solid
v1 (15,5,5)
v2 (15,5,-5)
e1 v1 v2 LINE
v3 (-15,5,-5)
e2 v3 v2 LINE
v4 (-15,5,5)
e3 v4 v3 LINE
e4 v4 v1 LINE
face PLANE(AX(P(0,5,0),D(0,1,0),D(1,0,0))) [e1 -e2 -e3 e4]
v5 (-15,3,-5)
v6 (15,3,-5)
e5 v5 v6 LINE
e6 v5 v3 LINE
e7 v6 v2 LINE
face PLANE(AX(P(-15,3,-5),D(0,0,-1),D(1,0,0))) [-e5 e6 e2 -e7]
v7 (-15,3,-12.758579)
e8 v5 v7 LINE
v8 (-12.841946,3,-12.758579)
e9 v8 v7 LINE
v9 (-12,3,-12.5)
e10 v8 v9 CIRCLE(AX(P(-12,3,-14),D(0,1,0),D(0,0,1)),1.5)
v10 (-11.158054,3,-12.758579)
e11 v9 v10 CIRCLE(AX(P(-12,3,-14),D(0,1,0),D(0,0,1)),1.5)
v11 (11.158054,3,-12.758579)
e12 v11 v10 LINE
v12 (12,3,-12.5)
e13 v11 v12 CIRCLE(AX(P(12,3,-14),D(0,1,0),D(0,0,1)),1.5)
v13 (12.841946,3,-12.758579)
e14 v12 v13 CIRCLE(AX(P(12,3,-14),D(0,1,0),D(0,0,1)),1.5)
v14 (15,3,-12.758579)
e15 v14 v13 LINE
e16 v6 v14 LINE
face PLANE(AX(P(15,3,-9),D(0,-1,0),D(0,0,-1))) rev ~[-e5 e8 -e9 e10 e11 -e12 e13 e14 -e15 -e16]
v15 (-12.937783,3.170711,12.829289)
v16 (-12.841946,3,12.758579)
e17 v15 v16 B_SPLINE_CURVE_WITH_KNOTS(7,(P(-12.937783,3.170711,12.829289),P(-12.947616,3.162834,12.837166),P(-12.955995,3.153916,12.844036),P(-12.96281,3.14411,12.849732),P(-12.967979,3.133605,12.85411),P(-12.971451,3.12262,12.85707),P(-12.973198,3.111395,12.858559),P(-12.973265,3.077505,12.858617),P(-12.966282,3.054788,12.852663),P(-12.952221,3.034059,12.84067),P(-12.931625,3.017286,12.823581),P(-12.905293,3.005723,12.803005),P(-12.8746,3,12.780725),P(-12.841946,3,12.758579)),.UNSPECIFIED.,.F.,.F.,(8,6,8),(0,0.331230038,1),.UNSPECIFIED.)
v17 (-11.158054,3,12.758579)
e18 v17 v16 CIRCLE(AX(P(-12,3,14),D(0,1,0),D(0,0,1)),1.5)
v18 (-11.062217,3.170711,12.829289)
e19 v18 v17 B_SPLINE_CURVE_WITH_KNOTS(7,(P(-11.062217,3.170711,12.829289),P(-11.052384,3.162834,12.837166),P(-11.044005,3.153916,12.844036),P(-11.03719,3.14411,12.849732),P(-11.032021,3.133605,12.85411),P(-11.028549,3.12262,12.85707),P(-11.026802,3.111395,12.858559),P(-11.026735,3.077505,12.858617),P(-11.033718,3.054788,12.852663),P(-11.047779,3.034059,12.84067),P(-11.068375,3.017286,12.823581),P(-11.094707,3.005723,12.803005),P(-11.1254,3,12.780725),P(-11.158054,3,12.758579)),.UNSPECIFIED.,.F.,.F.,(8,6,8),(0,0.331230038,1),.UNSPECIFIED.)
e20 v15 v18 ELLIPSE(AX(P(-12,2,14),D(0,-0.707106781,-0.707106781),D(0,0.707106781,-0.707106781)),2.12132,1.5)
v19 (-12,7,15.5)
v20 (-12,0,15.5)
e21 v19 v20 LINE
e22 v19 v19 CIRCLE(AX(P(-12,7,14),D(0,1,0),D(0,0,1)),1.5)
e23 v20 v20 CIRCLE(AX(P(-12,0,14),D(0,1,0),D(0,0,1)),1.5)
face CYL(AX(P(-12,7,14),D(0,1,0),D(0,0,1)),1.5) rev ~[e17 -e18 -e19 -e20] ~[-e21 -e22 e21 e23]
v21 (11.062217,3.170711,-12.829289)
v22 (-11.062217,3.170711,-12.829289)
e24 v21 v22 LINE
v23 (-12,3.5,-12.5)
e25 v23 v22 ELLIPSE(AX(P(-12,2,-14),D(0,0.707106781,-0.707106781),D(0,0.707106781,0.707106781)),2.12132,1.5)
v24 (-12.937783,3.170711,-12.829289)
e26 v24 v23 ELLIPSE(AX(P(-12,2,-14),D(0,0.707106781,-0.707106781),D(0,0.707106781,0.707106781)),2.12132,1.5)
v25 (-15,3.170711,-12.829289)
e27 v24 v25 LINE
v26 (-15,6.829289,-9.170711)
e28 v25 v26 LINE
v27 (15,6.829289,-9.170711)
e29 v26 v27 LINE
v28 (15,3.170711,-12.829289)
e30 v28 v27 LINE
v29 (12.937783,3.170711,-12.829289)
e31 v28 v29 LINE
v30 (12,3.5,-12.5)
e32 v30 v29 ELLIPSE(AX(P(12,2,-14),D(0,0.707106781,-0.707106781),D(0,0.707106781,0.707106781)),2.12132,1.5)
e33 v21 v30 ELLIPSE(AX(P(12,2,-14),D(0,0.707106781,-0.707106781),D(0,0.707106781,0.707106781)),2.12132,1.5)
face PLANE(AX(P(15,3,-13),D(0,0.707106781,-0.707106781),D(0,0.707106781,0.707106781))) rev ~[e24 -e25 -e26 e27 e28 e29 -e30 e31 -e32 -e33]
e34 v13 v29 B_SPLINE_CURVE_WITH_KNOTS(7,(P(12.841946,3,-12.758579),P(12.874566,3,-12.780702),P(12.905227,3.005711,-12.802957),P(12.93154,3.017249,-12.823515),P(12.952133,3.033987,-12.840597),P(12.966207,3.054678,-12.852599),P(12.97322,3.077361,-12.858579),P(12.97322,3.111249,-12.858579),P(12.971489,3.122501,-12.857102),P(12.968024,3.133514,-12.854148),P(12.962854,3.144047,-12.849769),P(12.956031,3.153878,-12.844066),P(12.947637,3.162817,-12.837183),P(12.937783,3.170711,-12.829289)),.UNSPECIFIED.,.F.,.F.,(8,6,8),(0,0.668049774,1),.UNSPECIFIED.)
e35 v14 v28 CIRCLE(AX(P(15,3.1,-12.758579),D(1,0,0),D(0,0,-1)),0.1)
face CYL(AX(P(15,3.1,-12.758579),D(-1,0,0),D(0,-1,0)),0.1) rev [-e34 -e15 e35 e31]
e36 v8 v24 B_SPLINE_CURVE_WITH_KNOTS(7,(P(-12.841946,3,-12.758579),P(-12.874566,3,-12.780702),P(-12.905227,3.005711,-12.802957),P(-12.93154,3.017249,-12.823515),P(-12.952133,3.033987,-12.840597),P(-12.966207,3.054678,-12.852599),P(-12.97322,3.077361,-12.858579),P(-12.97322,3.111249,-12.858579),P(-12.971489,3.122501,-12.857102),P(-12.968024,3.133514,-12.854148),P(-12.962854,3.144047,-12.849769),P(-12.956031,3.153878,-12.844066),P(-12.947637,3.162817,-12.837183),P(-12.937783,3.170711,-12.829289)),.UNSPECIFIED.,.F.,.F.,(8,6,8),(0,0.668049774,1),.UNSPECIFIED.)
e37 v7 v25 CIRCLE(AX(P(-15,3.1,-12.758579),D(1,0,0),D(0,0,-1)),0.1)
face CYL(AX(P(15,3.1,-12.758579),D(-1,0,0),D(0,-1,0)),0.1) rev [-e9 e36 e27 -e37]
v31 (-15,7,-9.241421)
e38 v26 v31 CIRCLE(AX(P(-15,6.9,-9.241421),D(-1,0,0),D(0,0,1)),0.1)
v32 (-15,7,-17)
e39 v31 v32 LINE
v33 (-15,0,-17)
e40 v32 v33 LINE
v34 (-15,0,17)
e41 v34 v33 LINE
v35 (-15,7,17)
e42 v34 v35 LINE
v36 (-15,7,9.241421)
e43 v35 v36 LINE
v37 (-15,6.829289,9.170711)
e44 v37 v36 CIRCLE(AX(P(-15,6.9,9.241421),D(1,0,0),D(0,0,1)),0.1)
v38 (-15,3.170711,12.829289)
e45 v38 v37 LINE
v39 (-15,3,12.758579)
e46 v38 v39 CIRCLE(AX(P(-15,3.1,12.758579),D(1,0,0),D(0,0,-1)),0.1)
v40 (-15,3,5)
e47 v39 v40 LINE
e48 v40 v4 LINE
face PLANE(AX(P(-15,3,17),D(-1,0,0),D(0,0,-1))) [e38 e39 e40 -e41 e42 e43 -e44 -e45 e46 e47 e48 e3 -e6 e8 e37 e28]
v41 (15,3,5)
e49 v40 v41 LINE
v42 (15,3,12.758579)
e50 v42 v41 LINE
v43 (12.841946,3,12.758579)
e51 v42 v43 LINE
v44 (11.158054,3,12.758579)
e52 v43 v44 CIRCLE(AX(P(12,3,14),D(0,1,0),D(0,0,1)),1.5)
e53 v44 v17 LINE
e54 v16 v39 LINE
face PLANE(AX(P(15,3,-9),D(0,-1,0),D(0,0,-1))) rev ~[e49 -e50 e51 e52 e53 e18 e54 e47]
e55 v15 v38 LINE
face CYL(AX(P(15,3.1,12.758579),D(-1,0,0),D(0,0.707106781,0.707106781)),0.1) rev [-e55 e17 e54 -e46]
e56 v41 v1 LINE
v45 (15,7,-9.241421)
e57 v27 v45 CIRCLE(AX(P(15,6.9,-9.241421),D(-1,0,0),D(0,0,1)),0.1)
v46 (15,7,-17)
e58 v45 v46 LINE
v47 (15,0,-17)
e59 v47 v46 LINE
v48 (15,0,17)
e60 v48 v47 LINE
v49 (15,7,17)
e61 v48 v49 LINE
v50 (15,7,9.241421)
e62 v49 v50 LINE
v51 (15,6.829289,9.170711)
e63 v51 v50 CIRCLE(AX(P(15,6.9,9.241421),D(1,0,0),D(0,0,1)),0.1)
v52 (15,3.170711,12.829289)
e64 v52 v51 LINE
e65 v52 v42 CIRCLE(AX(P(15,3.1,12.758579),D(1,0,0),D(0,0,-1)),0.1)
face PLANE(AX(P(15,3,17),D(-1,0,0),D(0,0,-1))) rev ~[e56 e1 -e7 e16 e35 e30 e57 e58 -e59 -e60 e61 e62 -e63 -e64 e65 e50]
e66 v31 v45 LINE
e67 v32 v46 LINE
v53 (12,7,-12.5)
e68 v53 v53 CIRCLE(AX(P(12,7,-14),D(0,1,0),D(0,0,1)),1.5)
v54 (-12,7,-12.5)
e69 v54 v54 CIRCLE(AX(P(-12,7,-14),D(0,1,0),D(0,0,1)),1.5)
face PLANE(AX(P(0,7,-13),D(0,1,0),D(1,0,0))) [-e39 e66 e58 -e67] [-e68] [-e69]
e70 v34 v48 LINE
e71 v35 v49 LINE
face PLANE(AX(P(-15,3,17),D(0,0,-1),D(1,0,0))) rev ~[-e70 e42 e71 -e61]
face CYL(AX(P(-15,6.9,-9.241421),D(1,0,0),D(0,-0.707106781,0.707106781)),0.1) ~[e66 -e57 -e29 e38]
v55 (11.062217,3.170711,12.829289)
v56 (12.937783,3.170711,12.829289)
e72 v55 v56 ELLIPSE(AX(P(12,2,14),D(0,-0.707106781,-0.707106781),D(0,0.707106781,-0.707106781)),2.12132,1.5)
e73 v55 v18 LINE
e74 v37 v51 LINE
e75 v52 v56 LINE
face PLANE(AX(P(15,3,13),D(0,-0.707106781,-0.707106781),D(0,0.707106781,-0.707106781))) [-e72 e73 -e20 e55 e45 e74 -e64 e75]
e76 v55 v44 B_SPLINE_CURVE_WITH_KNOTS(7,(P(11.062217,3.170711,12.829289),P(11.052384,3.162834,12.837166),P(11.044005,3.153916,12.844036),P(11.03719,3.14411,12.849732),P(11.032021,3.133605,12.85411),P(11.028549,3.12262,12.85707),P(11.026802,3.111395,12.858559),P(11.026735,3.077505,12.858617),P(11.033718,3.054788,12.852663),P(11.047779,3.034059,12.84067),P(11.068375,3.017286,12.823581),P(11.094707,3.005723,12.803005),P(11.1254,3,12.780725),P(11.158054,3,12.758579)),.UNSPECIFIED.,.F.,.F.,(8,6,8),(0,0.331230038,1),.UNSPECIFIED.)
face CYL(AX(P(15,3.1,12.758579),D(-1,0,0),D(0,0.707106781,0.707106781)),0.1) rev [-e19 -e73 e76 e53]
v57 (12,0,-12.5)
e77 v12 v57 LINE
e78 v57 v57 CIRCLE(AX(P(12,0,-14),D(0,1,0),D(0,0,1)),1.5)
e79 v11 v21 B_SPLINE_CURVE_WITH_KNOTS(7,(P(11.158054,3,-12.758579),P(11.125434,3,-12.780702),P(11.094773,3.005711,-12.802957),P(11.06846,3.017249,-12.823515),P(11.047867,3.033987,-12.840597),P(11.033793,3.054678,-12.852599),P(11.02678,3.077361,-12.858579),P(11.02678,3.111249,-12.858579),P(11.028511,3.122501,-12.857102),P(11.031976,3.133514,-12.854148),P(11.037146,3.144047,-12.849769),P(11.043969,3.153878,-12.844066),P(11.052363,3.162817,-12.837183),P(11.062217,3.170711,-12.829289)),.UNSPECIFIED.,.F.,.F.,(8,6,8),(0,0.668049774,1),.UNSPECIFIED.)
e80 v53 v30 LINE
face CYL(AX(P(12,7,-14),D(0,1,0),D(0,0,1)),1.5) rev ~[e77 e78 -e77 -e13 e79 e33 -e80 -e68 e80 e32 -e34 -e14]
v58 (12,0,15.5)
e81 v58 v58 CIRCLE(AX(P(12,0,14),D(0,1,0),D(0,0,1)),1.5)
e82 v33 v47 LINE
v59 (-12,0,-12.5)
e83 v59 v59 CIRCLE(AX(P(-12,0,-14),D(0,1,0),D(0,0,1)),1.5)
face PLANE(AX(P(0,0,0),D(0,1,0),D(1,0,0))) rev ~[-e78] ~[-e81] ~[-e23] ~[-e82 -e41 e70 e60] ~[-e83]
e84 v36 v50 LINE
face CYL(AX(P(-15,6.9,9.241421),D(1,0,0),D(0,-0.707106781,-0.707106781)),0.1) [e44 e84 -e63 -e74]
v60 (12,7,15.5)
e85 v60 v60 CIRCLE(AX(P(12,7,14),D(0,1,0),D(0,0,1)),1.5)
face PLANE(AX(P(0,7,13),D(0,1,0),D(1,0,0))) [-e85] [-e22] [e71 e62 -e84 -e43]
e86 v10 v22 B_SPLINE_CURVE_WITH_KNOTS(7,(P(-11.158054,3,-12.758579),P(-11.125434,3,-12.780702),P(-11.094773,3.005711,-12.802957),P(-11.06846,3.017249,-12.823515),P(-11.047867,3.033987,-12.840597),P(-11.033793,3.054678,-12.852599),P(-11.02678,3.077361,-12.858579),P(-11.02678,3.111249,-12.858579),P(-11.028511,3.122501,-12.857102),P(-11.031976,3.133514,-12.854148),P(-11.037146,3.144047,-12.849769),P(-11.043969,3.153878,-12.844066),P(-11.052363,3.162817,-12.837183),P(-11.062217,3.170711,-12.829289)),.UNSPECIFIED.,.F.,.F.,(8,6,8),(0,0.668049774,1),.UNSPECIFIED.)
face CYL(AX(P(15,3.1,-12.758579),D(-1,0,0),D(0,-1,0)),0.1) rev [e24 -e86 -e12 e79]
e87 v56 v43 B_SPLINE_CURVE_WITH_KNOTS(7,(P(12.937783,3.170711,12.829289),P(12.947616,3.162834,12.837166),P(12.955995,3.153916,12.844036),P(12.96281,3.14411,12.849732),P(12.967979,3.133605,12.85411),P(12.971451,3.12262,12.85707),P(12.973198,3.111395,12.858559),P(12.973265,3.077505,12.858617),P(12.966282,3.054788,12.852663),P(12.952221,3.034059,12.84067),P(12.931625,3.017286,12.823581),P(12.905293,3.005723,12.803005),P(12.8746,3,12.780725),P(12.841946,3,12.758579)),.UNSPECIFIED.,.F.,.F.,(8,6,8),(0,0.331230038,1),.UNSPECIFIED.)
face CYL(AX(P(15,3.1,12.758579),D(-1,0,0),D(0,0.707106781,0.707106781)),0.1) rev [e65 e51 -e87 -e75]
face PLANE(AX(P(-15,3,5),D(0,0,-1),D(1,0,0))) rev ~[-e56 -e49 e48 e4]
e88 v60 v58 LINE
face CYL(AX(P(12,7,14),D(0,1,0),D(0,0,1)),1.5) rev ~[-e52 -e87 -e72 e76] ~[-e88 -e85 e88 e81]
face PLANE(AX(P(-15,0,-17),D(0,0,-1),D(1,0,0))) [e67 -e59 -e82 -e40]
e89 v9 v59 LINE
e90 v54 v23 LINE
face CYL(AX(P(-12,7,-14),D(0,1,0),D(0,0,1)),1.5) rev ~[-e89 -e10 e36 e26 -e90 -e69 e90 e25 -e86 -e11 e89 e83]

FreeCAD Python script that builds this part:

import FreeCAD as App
import Part
import Sketcher
from FreeCAD import Vector


def edges_at(feature, points):
    """Names of the edges that pass closest to the given points."""
    edges = feature.Shape.Edges
    near = lambda p: min(range(len(edges)), key=lambda i: edges[i].distToShape(Part.Vertex(*p))[0])
    return sorted({f"Edge{near(p) + 1}" for p in points})


def add_polygon(sketch, points):
    """Adds a closed chain of lines whose ends are joined by coincident constraints."""
    first, n = sketch.GeometryCount, len(points)
    for a, b in zip(points, points[1:] + points[:1]):
        sketch.addGeometry(Part.LineSegment(App.Vector(*a, 0), App.Vector(*b, 0)), False)
    for i in range(n):
        sketch.addConstraint(Sketcher.Constraint("Coincident", first + i, 2, first + (i + 1) % n, 1))

doc = App.newDocument("Part")
body = doc.addObject("PartDesign::Body", "Body")

sketch1 = body.newObject("Sketcher::SketchObject", "Sketch")
sketch1.AttachmentSupport = (doc.getObject("XZ_Plane"), [""])
sketch1.MapMode = "FlatFace"
add_polygon(sketch1, [(-15, -17), (-15, 17), (15, 17), (15, -17)])
sketch1.addConstraint([
    Sketcher.Constraint("Vertical", 0),
    Sketcher.Constraint("Horizontal", 1),
    Sketcher.Constraint("Vertical", 2),
    Sketcher.Constraint("Horizontal", 3),
    Sketcher.Constraint("Symmetric", 0, 2, 2, 2, -1, 1),
    Sketcher.Constraint("DistanceX", 1, 1, 1, 2, 30.0),
    Sketcher.Constraint("DistanceY", 0, 1, 0, 2, 34.0),
])
pad1 = body.newObject("PartDesign::Pad", "Pad")
pad1.Profile = sketch1
pad1.Length = 3
pad1.Reversed = True

sketch2 = body.newObject("Sketcher::SketchObject", "Sketch001")
sketch2.AttachmentSupport = (doc.getObject("XZ_Plane"), [""])
sketch2.MapMode = "FlatFace"
sketch2.AttachmentOffset = App.Placement(Vector(0, 0, -3), App.Rotation())
add_polygon(sketch2, [(-15, 9), (-15, 17), (15, 17), (15, 9)])
add_polygon(sketch2, [(-15, -17), (-15, -9), (15, -9), (15, -17)])
sketch2.addConstraint([
    Sketcher.Constraint("Vertical", 0),
    Sketcher.Constraint("Horizontal", 1),
    Sketcher.Constraint("Vertical", 2),
    Sketcher.Constraint("Horizontal", 3),
    Sketcher.Constraint("Vertical", 4),
    Sketcher.Constraint("Horizontal", 5),
    Sketcher.Constraint("Vertical", 6),
    Sketcher.Constraint("Horizontal", 7),
    Sketcher.Constraint("Symmetric", 2, 2, 4, 2, -1, 1),
    Sketcher.Constraint("Symmetric", 0, 2, 6, 2, -1, 1),
    Sketcher.Constraint("Vertical", 3, 2, 4, 2),
    Sketcher.Constraint("DistanceX", 1, 1, 1, 2, 30.0),
    Sketcher.Constraint("DistanceY", 0, 1, 0, 2, 8.0),
    Sketcher.Constraint("DistanceY", -1, 1, 0, 2, 17.0),
])
pad2 = body.newObject("PartDesign::Pad", "Pad001")
pad2.Profile = sketch2
pad2.Length = 4
pad2.Reversed = True

sketch3 = body.newObject("Sketcher::SketchObject", "Sketch002")
sketch3.AttachmentSupport = (doc.getObject("YZ_Plane"), [""])
sketch3.MapMode = "FlatFace"
sketch3.AttachmentOffset = App.Placement(Vector(0, 0, 15), App.Rotation())
add_polygon(sketch3, [(3, 13), (3, 9), (7, 9)])
add_polygon(sketch3, [(3, -9), (3, -13), (7, -9)])
sketch3.addConstraint([
    Sketcher.Constraint("Vertical", 0),
    Sketcher.Constraint("Horizontal", 1),
    Sketcher.Constraint("Vertical", 3),
    Sketcher.Constraint("Horizontal", 5),
    Sketcher.Constraint("Symmetric", 2, 2, 3, 2, -1),
    Sketcher.Constraint("Symmetric", 1, 2, 4, 2, -1),
    Sketcher.Constraint("Perpendicular", 2, 4),
    Sketcher.Constraint("DistanceX", 1, 1, 1, 2, 4.0),
    Sketcher.Constraint("DistanceX", -1, 1, 0, 2, 3.0),
    Sketcher.Constraint("DistanceY", -1, 1, 0, 2, 9.0),
])
pocket1 = body.newObject("PartDesign::Pocket", "Pocket")
pocket1.Profile = sketch3
pocket1.Length = 30
doc.recompute()

fillet = body.newObject("PartDesign::Fillet", "Fillet")
fillet.Base = (pocket1, edges_at(pocket1, [(0, 7, 9)]))
fillet.Radius = 0.1
doc.recompute()

fillet2 = body.newObject("PartDesign::Fillet", "Fillet001")
fillet2.Base = (fillet, edges_at(fillet, [(0, 3, 13)]))
fillet2.Radius = 0.1
doc.recompute()

fillet3 = body.newObject("PartDesign::Fillet", "Fillet002")
fillet3.Base = (fillet2, edges_at(fillet2, [(0, 3, -13)]))
fillet3.Radius = 0.1
doc.recompute()

fillet4 = body.newObject("PartDesign::Fillet", "Fillet003")
fillet4.Base = (fillet3, edges_at(fillet3, [(0, 7, -9)]))
fillet4.Radius = 0.1

sketch4 = body.newObject("Sketcher::SketchObject", "Sketch003")
sketch4.AttachmentSupport = (doc.getObject("XZ_Plane"), [""])
sketch4.MapMode = "FlatFace"
sketch4.AttachmentOffset = App.Placement(Vector(0, 0, -7), App.Rotation())
sketch4.addGeometry([
    Part.Circle(Vector(-12, -14, 0), Vector(0, 0, 1), 1.5),
    Part.Circle(Vector(12, -14, 0), Vector(0, 0, 1), 1.5),
    Part.Circle(Vector(-12, 14, 0), Vector(0, 0, 1), 1.5),
    Part.Circle(Vector(12, 14, 0), Vector(0, 0, 1), 1.5),
], False)
sketch4.addConstraint([
    Sketcher.Constraint("Equal", 0, 1),
    Sketcher.Constraint("Equal", 1, 2),
    Sketcher.Constraint("Equal", 2, 3),
    Sketcher.Constraint("Symmetric", 1, 3, 2, 3, -1, 1),
    Sketcher.Constraint("Symmetric", 0, 3, 3, 3, -1, 1),
    Sketcher.Constraint("Symmetric", 0, 3, 1, 3, -2),
    Sketcher.Constraint("Diameter", 0, 3.0),
    Sketcher.Constraint("DistanceX", 0, 3, -1, 1, 12.0),
    Sketcher.Constraint("DistanceY", 0, 3, -1, 1, 14.0),
])
pocket2 = body.newObject("PartDesign::Pocket", "Pocket001")
pocket2.Profile = sketch4
pocket2.Length = 30
pocket2.Reversed = True

sketch5 = body.newObject("Sketcher::SketchObject", "Sketch004")
sketch5.AttachmentSupport = (doc.getObject("XZ_Plane"), [""])
sketch5.MapMode = "FlatFace"
sketch5.AttachmentOffset = App.Placement(Vector(0, 0, -3), App.Rotation())
add_polygon(sketch5, [(-15, -5), (-15, 5), (15, 5), (15, -5)])
sketch5.addConstraint([
    Sketcher.Constraint("Vertical", 0),
    Sketcher.Constraint("Horizontal", 1),
    Sketcher.Constraint("Vertical", 2),
    Sketcher.Constraint("Horizontal", 3),
    Sketcher.Constraint("Symmetric", 0, 2, 2, 2, -1, 1),
    Sketcher.Constraint("DistanceX", 1, 1, 1, 2, 30.0),
    Sketcher.Constraint("DistanceY", 0, 1, 0, 2, 10.0),
])
pad3 = body.newObject("PartDesign::Pad", "Pad002")
pad3.Profile = sketch5
pad3.Length = 2
pad3.Reversed = True

doc.recompute()
